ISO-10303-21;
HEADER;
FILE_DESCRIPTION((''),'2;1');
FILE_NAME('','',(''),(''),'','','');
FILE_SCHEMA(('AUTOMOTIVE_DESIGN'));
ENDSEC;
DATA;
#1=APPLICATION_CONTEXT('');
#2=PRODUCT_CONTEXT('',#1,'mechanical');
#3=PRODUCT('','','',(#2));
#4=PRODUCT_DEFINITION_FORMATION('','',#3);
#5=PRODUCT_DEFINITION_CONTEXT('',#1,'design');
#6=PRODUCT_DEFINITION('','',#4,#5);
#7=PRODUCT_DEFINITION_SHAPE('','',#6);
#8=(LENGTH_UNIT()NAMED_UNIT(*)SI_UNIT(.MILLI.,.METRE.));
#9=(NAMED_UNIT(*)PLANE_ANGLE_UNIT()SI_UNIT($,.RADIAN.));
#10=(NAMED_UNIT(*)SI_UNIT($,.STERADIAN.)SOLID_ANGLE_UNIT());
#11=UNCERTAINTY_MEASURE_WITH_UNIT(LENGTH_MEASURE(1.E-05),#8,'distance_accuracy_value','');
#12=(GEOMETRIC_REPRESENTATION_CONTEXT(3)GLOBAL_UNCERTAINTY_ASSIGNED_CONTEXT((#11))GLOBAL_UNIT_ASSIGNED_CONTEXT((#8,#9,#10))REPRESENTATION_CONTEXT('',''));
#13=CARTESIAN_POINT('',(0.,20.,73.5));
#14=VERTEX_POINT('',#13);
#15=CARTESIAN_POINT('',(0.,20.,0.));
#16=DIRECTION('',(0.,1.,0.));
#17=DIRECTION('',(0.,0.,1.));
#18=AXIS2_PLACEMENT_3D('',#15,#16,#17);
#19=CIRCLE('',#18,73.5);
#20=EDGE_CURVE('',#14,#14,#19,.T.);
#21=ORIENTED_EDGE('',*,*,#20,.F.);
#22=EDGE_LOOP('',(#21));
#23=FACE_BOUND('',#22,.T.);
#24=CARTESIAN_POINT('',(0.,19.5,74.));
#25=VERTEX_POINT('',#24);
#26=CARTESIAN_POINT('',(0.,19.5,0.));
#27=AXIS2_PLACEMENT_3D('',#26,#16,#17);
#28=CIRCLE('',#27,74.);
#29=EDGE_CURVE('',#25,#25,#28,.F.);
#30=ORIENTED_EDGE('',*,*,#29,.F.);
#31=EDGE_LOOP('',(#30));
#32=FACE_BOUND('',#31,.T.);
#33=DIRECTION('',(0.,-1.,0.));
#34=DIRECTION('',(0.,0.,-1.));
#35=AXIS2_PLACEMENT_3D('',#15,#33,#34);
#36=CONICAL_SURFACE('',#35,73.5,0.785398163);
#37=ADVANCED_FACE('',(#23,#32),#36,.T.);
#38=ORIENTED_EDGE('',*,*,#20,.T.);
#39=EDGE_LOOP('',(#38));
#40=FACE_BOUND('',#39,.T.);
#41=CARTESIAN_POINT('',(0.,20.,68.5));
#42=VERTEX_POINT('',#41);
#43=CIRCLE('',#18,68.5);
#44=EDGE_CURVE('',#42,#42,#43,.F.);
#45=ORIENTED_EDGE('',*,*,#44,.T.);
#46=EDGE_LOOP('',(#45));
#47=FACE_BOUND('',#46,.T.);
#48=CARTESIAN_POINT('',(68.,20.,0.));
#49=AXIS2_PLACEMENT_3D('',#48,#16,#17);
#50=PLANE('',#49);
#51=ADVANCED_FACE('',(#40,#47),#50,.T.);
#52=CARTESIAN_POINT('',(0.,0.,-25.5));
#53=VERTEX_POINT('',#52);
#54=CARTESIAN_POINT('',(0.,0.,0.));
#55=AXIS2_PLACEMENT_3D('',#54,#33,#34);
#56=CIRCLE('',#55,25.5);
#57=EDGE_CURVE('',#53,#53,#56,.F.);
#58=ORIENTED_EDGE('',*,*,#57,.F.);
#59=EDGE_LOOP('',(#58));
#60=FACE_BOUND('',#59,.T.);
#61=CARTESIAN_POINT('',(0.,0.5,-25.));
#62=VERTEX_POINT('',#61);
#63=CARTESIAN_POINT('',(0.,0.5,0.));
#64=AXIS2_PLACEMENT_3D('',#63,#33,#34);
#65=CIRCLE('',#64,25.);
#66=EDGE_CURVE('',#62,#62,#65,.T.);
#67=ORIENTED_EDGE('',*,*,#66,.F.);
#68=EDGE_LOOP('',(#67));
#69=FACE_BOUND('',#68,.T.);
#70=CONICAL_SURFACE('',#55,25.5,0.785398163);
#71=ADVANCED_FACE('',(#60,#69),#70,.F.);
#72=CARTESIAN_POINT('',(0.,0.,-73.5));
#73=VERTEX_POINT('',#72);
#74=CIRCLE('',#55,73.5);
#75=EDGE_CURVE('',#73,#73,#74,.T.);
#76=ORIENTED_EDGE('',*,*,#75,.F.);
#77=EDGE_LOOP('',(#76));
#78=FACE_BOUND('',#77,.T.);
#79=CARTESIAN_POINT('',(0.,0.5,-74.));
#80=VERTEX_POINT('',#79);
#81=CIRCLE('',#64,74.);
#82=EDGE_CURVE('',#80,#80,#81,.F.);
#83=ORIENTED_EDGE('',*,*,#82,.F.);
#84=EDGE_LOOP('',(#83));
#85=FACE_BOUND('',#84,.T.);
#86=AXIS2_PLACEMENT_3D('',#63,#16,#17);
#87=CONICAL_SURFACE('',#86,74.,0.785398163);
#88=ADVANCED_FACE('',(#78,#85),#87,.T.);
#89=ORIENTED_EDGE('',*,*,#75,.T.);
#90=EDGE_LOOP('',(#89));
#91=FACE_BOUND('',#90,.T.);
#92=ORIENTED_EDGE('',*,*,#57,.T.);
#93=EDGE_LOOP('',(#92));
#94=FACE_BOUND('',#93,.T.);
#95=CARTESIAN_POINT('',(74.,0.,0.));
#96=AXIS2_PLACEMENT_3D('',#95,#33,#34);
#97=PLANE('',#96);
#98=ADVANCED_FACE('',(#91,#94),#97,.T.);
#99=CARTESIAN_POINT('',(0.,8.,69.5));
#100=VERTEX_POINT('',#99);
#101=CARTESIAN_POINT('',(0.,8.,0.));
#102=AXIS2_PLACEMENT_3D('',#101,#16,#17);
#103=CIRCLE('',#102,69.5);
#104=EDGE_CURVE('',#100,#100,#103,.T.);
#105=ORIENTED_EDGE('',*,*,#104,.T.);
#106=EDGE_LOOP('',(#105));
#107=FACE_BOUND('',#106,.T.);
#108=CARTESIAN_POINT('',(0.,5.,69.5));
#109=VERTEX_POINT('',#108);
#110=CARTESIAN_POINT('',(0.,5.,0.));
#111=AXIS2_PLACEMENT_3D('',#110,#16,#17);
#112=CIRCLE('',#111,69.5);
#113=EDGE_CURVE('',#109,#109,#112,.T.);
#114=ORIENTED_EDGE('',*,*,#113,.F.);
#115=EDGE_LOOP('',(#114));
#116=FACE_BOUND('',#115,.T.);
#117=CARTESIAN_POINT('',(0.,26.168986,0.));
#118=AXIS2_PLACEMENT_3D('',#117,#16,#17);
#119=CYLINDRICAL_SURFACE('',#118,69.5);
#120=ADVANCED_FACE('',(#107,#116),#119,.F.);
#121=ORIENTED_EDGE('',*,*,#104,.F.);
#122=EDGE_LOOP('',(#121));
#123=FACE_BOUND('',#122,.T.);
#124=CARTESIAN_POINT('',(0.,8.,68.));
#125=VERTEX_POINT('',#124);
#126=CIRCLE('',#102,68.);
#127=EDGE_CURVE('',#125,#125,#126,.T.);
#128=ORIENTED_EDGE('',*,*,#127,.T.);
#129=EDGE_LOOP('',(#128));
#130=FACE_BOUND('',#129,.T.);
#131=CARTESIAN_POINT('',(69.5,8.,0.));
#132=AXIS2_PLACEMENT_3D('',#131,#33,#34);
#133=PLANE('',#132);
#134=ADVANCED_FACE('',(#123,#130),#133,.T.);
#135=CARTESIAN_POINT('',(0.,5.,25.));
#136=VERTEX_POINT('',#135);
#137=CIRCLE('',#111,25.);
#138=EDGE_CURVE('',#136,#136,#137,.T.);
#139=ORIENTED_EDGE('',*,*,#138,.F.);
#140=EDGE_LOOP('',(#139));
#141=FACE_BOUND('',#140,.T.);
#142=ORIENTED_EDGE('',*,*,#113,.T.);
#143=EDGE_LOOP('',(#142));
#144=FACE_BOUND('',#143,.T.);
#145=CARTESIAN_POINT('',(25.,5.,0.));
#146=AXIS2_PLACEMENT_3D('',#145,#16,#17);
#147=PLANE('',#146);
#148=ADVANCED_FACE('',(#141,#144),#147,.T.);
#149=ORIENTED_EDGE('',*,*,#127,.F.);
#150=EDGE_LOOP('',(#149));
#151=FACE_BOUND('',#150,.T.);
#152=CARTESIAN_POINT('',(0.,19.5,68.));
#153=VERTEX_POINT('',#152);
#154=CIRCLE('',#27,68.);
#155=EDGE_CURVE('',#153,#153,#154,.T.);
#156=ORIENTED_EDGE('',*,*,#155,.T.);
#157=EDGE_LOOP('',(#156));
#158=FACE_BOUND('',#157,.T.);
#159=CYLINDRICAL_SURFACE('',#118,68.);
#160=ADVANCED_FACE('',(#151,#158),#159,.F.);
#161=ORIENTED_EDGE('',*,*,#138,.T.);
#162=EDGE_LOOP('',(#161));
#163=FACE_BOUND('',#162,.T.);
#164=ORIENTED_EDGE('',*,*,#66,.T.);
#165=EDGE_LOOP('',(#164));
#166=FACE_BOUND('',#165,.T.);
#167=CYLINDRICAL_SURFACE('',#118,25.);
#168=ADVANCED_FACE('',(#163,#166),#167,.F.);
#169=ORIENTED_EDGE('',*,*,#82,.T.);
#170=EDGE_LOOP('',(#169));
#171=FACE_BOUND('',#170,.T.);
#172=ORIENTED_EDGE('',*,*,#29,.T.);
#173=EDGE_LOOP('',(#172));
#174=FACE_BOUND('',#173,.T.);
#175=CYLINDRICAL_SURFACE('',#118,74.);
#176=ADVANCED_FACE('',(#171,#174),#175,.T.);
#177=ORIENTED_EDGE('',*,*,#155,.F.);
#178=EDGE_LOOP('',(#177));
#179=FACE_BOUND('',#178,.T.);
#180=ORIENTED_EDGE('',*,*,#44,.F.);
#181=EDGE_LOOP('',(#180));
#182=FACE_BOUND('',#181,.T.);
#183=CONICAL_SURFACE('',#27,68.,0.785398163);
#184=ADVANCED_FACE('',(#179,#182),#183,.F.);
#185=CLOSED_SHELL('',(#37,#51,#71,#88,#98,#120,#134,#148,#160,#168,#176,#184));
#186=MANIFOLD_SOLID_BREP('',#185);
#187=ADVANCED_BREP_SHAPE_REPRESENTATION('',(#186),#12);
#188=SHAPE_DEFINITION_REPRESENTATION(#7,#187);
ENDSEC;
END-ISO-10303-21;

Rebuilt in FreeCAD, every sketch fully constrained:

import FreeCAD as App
import Part
import Sketcher
from FreeCAD import Vector


def edges_at(feature, points):
    """Names of the edges that pass closest to the given points."""
    edges = feature.Shape.Edges
    near = lambda p: min(range(len(edges)), key=lambda i: edges[i].distToShape(Part.Vertex(*p))[0])
    return sorted({f"Edge{near(p) + 1}" for p in points})

doc = App.newDocument("Part")
body = doc.addObject("PartDesign::Body", "Body")

sketch1 = body.newObject("Sketcher::SketchObject", "Sketch")
sketch1.AttachmentSupport = (doc.getObject("XY_Plane"), [""])
sketch1.MapMode = "FlatFace"
sketch1.addGeometry([
    Part.LineSegment(Vector(-74, 20, 0), Vector(-74, 0, 0)),
    Part.LineSegment(Vector(-74, 0, 0), Vector(-25, 0, 0)),
    Part.LineSegment(Vector(-25, 0, 0), Vector(-25, 5, 0)),
    Part.LineSegment(Vector(-25, 5, 0), Vector(-69.5, 5, 0)),
    Part.LineSegment(Vector(-69.5, 5, 0), Vector(-69.5, 8, 0)),
    Part.LineSegment(Vector(-69.5, 8, 0), Vector(-68, 8, 0)),
    Part.LineSegment(Vector(-68, 8, 0), Vector(-68, 20, 0)),
    Part.LineSegment(Vector(-68, 20, 0), Vector(-74, 20, 0)),
], False)
sketch1.addConstraint([
    Sketcher.Constraint("Coincident", 0, 2, 1, 1),
    Sketcher.Constraint("Coincident", 1, 2, 2, 1),
    Sketcher.Constraint("Coincident", 2, 2, 3, 1),
    Sketcher.Constraint("Coincident", 3, 2, 4, 1),
    Sketcher.Constraint("Coincident", 4, 2, 5, 1),
    Sketcher.Constraint("Coincident", 5, 2, 6, 1),
    Sketcher.Constraint("Coincident", 6, 2, 7, 1),
    Sketcher.Constraint("Coincident", 7, 2, 0, 1),
    Sketcher.Constraint("Vertical", 0),
    Sketcher.Constraint("Horizontal", 1),
    Sketcher.Constraint("Vertical", 2),
    Sketcher.Constraint("Horizontal", 3),
    Sketcher.Constraint("Vertical", 4),
    Sketcher.Constraint("Horizontal", 5),
    Sketcher.Constraint("Vertical", 6),
    Sketcher.Constraint("Horizontal", 7),
    Sketcher.Constraint("PointOnObject", 0, 2, -1),
    Sketcher.Constraint("DistanceX", 1, 1, 1, 2, 49.0),
    Sketcher.Constraint("DistanceX", 7, 2, 7, 1, 6.0),
    Sketcher.Constraint("DistanceY", 0, 2, 0, 1, 20.0),
    Sketcher.Constraint("DistanceY", 2, 1, 2, 2, 5.0),
    Sketcher.Constraint("DistanceY", 4, 1, 4, 2, 3.0),
    Sketcher.Constraint("DistanceX", 3, 2, 3, 1, 44.5),
    Sketcher.Constraint("DistanceX", 0, 2, -1, 1, 74.0),
])
revolution = body.newObject("PartDesign::Revolution", "Revolution")
revolution.Profile = sketch1
revolution.ReferenceAxis = (sketch1, ["V_Axis"])
revolution.Angle = 360
doc.recompute()

chamfer = body.newObject("PartDesign::Chamfer", "Chamfer")
chamfer.Base = (revolution, edges_at(revolution, [
    (0, 20, -74),
    (0, 20, -68),
    (0, 0, -25),
    (0, 0, -74),
]))
chamfer.Size = 0.5

doc.recompute()
